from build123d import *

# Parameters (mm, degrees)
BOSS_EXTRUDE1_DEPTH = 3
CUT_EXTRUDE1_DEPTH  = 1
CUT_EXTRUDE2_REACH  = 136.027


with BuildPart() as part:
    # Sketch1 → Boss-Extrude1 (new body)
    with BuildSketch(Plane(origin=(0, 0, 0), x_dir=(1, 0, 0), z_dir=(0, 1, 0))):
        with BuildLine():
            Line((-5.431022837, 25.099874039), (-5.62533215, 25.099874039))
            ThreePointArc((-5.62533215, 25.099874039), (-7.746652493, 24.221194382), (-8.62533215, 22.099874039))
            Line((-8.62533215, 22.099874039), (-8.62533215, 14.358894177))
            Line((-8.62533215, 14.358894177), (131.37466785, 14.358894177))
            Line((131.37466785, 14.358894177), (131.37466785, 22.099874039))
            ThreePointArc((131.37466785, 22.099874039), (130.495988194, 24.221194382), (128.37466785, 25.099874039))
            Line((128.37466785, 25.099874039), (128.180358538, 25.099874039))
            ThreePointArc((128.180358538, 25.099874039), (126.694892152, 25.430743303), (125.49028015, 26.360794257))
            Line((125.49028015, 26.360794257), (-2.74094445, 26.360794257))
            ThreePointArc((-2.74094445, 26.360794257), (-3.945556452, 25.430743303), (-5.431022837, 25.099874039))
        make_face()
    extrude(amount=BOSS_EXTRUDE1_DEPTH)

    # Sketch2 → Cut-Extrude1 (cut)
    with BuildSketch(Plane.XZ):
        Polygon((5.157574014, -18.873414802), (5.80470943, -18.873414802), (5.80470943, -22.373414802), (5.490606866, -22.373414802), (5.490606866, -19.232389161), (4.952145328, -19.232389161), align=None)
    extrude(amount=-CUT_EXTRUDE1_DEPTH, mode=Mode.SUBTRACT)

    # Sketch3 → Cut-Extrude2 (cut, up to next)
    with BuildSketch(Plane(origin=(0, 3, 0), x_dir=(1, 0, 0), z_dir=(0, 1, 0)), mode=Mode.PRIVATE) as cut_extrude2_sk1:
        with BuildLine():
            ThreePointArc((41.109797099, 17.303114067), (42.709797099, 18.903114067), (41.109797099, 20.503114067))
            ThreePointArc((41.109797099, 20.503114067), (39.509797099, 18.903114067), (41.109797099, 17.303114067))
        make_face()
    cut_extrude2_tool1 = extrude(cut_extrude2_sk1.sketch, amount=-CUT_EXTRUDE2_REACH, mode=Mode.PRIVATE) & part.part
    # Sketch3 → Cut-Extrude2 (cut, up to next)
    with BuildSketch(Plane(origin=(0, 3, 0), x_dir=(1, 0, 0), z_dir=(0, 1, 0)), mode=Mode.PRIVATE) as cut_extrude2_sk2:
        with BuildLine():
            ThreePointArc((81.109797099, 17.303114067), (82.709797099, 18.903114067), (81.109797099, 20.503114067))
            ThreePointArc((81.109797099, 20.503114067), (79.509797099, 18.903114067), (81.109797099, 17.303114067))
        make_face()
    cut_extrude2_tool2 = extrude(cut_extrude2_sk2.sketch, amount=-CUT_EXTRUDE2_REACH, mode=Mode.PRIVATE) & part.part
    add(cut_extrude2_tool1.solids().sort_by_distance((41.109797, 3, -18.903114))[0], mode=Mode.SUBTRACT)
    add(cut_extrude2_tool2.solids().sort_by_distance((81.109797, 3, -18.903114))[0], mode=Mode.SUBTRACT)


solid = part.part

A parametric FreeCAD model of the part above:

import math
import FreeCAD as App
import Part
import Sketcher
Q = App.Units.Quantity


def add_polygon(sketch, points):
    """Adds a closed chain of lines whose ends are joined by coincident constraints."""
    first, n = sketch.GeometryCount, len(points)
    for a, b in zip(points, points[1:] + points[:1]):
        sketch.addGeometry(Part.LineSegment(App.Vector(*a, 0), App.Vector(*b, 0)), False)
    for i in range(n):
        sketch.addConstraint(Sketcher.Constraint("Coincident", first + i, 2, first + (i + 1) % n, 1))

doc = App.newDocument("Part")
body = doc.addObject("PartDesign::Body", "Body")

# Sketch on XZ plane
sketch1 = doc.addObject("Sketcher::SketchObject", "Sketch")
body.addObject(sketch1)
sketch1.AttachmentSupport = (doc.XZ_Plane, [""])
sketch1.MapMode = "FlatFace"
sketch1.addGeometry([
    Part.LineSegment(App.Vector(-5.43, -25.1, 0), App.Vector(-5.63, -25.1, 0)),  # 0
    Part.ArcOfCircle(Part.Circle(App.Vector(-5.63, -22.1, 0), App.Vector(0, 0, 1), 3), math.radians(-180), math.radians(-90)),  # 1
    Part.LineSegment(App.Vector(-8.63, -22.1, 0), App.Vector(-8.63, -14.36, 0)),  # 2
    Part.LineSegment(App.Vector(-8.63, -14.36, 0), App.Vector(131.37, -14.36, 0)),  # 3
    Part.LineSegment(App.Vector(131.37, -14.36, 0), App.Vector(131.37, -22.1, 0)),  # 4
    Part.ArcOfCircle(Part.Circle(App.Vector(128.37, -22.1, 0), App.Vector(0, 0, 1), 3), math.radians(-90), math.radians(0)),  # 5
    Part.LineSegment(App.Vector(128.37, -25.1, 0), App.Vector(128.18, -25.1, 0)),  # 6
    Part.ArcOfCircle(Part.Circle(App.Vector(128.18, -28.6, 0), App.Vector(0, 0, 1), 3.5), math.radians(90), math.radians(140)),  # 7
    Part.LineSegment(App.Vector(125.49, -26.36, 0), App.Vector(-2.74, -26.36, 0)),  # 8
    Part.ArcOfCircle(Part.Circle(App.Vector(-5.43, -28.6, 0), App.Vector(0, 0, 1), 3.5), math.radians(40), math.radians(90)),  # 9
], False)
sketch1.addConstraint([
    Sketcher.Constraint("Tangent", 0, 2, 1, 2),
    Sketcher.Constraint("Tangent", 1, 1, 2, 1),
    Sketcher.Constraint("Coincident", 2, 2, 3, 1),
    Sketcher.Constraint("Coincident", 3, 2, 4, 1),
    Sketcher.Constraint("Tangent", 4, 2, 5, 2),
    Sketcher.Constraint("Tangent", 5, 1, 6, 1),
    Sketcher.Constraint("Tangent", 6, 2, 7, 1),
    Sketcher.Constraint("Coincident", 7, 2, 8, 1),
    Sketcher.Constraint("Coincident", 8, 2, 9, 1),
    Sketcher.Constraint("Tangent", 9, 2, 0, 1),
    Sketcher.Constraint("Horizontal", 0),
    Sketcher.Constraint("Vertical", 2),
    Sketcher.Constraint("Horizontal", 3),
    Sketcher.Constraint("Vertical", 4),
    Sketcher.Constraint("Horizontal", 6),
    Sketcher.Constraint("Horizontal", 8),
    Sketcher.Constraint("Equal", 1, 5),
    Sketcher.Constraint("Equal", 7, 9),
    Sketcher.Constraint("Horizontal", 1, 3, 5, 3),
    Sketcher.Constraint("Equal", 0, 6),
    Sketcher.Constraint("Radius", 1, Q("3 mm")),
    Sketcher.Constraint("Radius", 7, Q("3.5 mm")),
    Sketcher.Constraint("DistanceX", 3, 1, 3, 2, Q("140 mm")),
    Sketcher.Constraint("DistanceX", 0, 2, 0, 1, Q("0.194309 mm")),
    Sketcher.Constraint("DistanceY", 2, 1, 2, 2, Q("7.74098 mm")),
    Sketcher.Constraint("DistanceY", 8, 2, 2, 2, Q("12.0019 mm")),
    Sketcher.Constraint("DistanceX", -1, 1, 7, 3, Q("128.180359 mm")),
    Sketcher.Constraint("DistanceY", 1, 3, -1, 1, Q("22.099874 mm")),
])
pad1 = doc.addObject("PartDesign::Pad", "Pad")
body.addObject(pad1)
pad1.Profile = sketch1
pad1.Length = 3
pad1.Reversed = True

# Sketch on XZ plane
sketch2 = doc.addObject("Sketcher::SketchObject", "Sketch001")
body.addObject(sketch2)
sketch2.AttachmentSupport = (doc.XZ_Plane, [""])
sketch2.MapMode = "FlatFace"
add_polygon(sketch2, [(5.8, -18.87), (5.16, -18.87), (4.95, -19.23), (5.49, -19.23), (5.49, -22.37), (5.8, -22.37)])  # lines 0-5
sketch2.addConstraint([
    Sketcher.Constraint("Horizontal", 0),
    Sketcher.Constraint("Horizontal", 2),
    Sketcher.Constraint("Vertical", 3),
    Sketcher.Constraint("Horizontal", 4),
    Sketcher.Constraint("Vertical", 5),
    Sketcher.Constraint("DistanceY", 5, 1, 5, 2, Q("3.5 mm")),
    Sketcher.Constraint("Distance", 1, Q("0.413598 mm")),
    Sketcher.Constraint("DistanceX", 2, 1, 2, 2, Q("0.538462 mm")),
    Sketcher.Constraint("DistanceX", 0, 2, 0, 1, Q("0.647135 mm")),
    Sketcher.Constraint("DistanceX", 4, 1, 4, 2, Q("0.314103 mm")),
    Sketcher.Constraint("DistanceY", 1, 2, -1, 1, Q("19.232389 mm")),
    Sketcher.Constraint("DistanceX", -1, 1, 4, 2, Q("5.804709 mm")),
])
pocket1 = doc.addObject("PartDesign::Pocket", "Pocket")
body.addObject(pocket1)
pocket1.Profile = sketch2
pocket1.Length = 1

# Sketch on XZ plane
sketch3 = doc.addObject("Sketcher::SketchObject", "Sketch002")
body.addObject(sketch3)
sketch3.AttachmentSupport = (doc.XZ_Plane, [""])
sketch3.MapMode = "FlatFace"
sketch3.AttachmentOffset = App.Placement(App.Vector(0, 0, -3), App.Rotation())
sketch3.addGeometry(Part.Circle(App.Vector(41.1, -18.9, 0), App.Vector(0, 0, 1), 1.6), False)
sketch3.addConstraint([
    Sketcher.Constraint("Diameter", 0, Q("3.2 mm")),
    Sketcher.Constraint("DistanceX", -1, 1, 0, 3, Q("41.109797 mm")),
    Sketcher.Constraint("DistanceY", 0, 3, -1, 1, Q("18.903114 mm")),
])
pocket2 = doc.addObject("PartDesign::Pocket", "Pocket001")
body.addObject(pocket2)
pocket2.Profile = sketch3
pocket2.Type = "UpToFirst"
pocket2.Reversed = True

# Sketch on XZ plane
sketch4 = doc.addObject("Sketcher::SketchObject", "Sketch003")
body.addObject(sketch4)
sketch4.AttachmentSupport = (doc.XZ_Plane, [""])
sketch4.MapMode = "FlatFace"
sketch4.AttachmentOffset = App.Placement(App.Vector(0, 0, -3), App.Rotation())
sketch4.addGeometry(Part.Circle(App.Vector(81.1, -18.9, 0), App.Vector(0, 0, 1), 1.6), False)
sketch4.addConstraint([
    Sketcher.Constraint("Diameter", 0, Q("3.2 mm")),
    Sketcher.Constraint("DistanceX", -1, 1, 0, 3, Q("81.109797 mm")),
    Sketcher.Constraint("DistanceY", 0, 3, -1, 1, Q("18.903114 mm")),
])
pocket3 = doc.addObject("PartDesign::Pocket", "Pocket002")
body.addObject(pocket3)
pocket3.Profile = sketch4
pocket3.Type = "UpToFirst"
pocket3.Reversed = True

doc.recompute()
